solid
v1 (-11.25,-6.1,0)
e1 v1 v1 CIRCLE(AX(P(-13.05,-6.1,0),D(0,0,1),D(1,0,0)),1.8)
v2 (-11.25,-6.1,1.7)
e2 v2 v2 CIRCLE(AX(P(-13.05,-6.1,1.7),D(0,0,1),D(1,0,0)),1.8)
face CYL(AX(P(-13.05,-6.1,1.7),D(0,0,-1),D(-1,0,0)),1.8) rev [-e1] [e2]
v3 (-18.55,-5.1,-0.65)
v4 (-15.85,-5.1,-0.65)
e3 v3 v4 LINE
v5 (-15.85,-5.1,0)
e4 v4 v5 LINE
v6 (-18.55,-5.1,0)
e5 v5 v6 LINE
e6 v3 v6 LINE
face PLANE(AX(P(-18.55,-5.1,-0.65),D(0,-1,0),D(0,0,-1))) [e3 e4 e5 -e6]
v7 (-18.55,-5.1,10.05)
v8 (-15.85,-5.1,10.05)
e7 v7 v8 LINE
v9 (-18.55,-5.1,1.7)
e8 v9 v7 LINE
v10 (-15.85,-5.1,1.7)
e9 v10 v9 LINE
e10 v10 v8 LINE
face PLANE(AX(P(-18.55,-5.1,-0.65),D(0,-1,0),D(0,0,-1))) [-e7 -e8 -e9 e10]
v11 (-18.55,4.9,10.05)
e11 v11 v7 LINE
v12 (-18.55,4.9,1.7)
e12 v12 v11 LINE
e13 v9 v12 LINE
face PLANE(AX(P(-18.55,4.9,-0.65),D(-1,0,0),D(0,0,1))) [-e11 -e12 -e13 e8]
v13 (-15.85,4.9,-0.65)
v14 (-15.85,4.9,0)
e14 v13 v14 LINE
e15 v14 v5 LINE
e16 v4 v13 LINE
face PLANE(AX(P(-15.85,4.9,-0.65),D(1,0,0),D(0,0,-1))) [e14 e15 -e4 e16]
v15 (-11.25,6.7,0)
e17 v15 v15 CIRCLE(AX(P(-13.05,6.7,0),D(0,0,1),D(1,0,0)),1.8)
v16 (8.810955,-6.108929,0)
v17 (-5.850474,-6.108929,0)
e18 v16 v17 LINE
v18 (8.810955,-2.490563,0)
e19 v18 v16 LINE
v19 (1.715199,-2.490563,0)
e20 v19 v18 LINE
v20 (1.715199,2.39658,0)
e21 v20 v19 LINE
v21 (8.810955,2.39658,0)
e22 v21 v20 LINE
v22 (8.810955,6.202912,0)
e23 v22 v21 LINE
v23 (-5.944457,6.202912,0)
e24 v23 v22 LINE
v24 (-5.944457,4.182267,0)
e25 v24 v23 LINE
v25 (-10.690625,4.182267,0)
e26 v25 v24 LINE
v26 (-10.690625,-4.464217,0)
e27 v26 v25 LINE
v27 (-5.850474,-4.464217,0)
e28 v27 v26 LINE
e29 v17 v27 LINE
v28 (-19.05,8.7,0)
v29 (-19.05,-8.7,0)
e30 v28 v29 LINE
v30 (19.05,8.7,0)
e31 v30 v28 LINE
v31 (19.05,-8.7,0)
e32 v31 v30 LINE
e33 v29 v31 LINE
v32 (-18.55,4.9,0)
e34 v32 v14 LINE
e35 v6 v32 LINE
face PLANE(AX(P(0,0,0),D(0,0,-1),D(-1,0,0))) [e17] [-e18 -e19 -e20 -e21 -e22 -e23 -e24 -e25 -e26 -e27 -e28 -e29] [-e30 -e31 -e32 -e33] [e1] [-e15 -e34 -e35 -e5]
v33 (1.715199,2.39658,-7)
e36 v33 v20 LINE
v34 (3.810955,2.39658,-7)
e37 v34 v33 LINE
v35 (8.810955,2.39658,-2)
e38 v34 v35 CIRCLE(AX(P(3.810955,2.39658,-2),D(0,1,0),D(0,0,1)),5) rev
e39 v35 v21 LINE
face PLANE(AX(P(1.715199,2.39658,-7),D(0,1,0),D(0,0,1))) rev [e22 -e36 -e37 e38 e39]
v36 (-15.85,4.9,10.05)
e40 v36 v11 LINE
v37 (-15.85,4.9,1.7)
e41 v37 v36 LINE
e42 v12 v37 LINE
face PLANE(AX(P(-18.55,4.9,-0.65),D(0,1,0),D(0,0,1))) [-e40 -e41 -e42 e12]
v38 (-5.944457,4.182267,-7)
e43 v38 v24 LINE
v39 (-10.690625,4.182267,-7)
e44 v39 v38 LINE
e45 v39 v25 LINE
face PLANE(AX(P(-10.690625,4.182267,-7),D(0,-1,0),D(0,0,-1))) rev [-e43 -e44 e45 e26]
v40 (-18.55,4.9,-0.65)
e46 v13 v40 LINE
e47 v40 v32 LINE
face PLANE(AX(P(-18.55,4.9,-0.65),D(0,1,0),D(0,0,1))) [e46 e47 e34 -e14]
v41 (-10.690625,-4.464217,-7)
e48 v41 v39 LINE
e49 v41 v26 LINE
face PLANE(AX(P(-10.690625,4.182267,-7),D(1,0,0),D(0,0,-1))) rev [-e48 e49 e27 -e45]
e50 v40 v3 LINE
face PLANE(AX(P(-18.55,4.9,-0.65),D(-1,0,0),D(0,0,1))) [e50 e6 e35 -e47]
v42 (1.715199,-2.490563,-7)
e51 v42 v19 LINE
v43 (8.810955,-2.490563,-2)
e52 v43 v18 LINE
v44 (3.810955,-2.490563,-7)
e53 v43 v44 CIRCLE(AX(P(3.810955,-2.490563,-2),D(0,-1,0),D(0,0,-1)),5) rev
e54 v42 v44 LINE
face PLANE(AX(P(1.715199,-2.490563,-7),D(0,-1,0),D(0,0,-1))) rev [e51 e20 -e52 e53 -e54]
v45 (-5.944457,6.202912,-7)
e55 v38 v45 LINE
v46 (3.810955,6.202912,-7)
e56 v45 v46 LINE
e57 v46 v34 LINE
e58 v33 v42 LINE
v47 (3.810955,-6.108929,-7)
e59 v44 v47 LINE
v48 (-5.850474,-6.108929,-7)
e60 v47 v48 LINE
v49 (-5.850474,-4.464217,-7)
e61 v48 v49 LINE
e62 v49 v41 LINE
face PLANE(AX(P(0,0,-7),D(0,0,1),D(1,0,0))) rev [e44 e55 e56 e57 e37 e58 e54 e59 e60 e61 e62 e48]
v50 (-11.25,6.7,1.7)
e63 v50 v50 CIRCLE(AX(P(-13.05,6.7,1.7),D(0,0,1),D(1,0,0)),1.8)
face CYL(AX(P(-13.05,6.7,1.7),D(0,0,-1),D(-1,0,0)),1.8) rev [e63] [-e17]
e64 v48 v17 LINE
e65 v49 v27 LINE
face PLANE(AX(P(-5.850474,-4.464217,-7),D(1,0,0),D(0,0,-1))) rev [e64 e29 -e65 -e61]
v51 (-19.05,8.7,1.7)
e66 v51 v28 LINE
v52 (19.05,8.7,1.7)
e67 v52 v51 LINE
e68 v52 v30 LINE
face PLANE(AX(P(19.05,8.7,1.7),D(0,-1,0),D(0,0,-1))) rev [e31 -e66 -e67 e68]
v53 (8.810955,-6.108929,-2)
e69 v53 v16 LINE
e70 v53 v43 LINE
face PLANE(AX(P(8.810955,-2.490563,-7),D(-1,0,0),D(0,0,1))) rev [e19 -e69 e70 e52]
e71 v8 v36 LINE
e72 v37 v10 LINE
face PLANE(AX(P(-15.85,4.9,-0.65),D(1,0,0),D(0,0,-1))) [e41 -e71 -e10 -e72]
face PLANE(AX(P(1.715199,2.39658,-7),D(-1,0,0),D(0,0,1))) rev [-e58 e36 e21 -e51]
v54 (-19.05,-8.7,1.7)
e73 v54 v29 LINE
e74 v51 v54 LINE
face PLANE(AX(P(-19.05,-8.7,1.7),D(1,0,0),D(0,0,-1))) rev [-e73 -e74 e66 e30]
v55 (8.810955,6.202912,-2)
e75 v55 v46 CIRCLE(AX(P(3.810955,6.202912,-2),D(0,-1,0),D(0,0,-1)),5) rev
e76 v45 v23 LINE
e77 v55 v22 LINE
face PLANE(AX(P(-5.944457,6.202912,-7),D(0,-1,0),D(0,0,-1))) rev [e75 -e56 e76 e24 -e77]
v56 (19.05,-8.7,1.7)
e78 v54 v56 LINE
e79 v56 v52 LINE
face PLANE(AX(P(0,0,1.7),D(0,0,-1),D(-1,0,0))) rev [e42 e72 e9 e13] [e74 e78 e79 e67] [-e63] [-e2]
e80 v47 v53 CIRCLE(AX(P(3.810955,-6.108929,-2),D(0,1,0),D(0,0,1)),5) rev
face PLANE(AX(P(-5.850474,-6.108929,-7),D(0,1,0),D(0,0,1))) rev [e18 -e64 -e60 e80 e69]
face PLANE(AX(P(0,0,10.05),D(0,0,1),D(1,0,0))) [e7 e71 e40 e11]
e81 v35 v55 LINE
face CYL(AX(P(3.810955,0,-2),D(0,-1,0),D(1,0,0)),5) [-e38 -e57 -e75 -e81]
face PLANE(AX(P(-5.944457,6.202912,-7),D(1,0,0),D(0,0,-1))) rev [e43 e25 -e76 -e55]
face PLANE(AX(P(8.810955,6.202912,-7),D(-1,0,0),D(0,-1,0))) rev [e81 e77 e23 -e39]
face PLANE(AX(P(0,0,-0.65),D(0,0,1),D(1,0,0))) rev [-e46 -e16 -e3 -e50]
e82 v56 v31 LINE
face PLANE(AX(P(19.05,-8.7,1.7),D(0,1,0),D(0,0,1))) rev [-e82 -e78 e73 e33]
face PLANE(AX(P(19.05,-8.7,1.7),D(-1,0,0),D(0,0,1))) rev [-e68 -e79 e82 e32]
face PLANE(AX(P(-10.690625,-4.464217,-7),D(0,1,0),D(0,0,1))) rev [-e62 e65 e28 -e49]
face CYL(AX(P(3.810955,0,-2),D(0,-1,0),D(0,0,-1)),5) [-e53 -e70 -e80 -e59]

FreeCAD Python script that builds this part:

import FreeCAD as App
import Part
import Sketcher
from FreeCAD import Vector


def edges_at(feature, points):
    """Names of the edges that pass closest to the given points."""
    edges = feature.Shape.Edges
    near = lambda p: min(range(len(edges)), key=lambda i: edges[i].distToShape(Part.Vertex(*p))[0])
    return sorted({f"Edge{near(p) + 1}" for p in points})

doc = App.newDocument("Part")
body = doc.addObject("PartDesign::Body", "Body")

sketch1 = doc.addObject("Sketcher::SketchObject", "Sketch")
body.addObject(sketch1)
sketch1.AttachmentSupport = (doc.XY_Plane, [""])
sketch1.MapMode = "FlatFace"
sketch1.addGeometry([
    Part.LineSegment(Vector(-19.1, -8.7, 0), Vector(19.1, -8.7, 0)),
    Part.LineSegment(Vector(19.1, -8.7, 0), Vector(19.1, 8.7, 0)),
    Part.LineSegment(Vector(19.1, 8.7, 0), Vector(-19.1, 8.7, 0)),
    Part.LineSegment(Vector(-19.1, 8.7, 0), Vector(-19.1, -8.7, 0)),
    Part.Circle(Vector(-13.1, -6.1, 0), Vector(0, 0, 1), 1.8),
    Part.Circle(Vector(-13.1, 6.7, 0), Vector(0, 0, 1), 1.8),
], False)
sketch1.addConstraint([
    Sketcher.Constraint("Coincident", 0, 2, 1, 1),
    Sketcher.Constraint("Coincident", 1, 2, 2, 1),
    Sketcher.Constraint("Coincident", 2, 2, 3, 1),
    Sketcher.Constraint("Coincident", 3, 2, 0, 1),
    Sketcher.Constraint("Horizontal", 0),
    Sketcher.Constraint("Vertical", 1),
    Sketcher.Constraint("Horizontal", 2),
    Sketcher.Constraint("Vertical", 3),
    Sketcher.Constraint("Equal", 4, 5),
    Sketcher.Constraint("Symmetric", 0, 2, 2, 2, -1, 1),
    Sketcher.Constraint("Vertical", 4, 3, 5, 3),
    Sketcher.Constraint("Diameter", 4, 3.6),
    Sketcher.Constraint("DistanceX", 0, 1, 0, 2, 38.1),
    Sketcher.Constraint("DistanceY", 1, 1, 1, 2, 17.4),
    Sketcher.Constraint("DistanceY", 5, 3, 1, 2, 2.0),
    Sketcher.Constraint("DistanceX", 2, 2, 5, 3, 6.0),
    Sketcher.Constraint("DistanceY", 4, 3, -1, 1, 6.1),
])
pad1 = doc.addObject("PartDesign::Pad", "Pad")
body.addObject(pad1)
pad1.Profile = sketch1
pad1.Length = 1.7

sketch2 = doc.addObject("Sketcher::SketchObject", "Sketch001")
body.addObject(sketch2)
sketch2.AttachmentSupport = (doc.XY_Plane, [""])
sketch2.MapMode = "FlatFace"
sketch2.AttachmentOffset = App.Placement(Vector(0, 0, 1.7), App.Rotation())
sketch2.addGeometry([
    Part.LineSegment(Vector(-18.6, 4.9, 0), Vector(-18.6, -5.1, 0)),
    Part.LineSegment(Vector(-18.6, -5.1, 0), Vector(-15.8, -5.1, 0)),
    Part.LineSegment(Vector(-15.8, -5.1, 0), Vector(-15.8, 4.9, 0)),
    Part.LineSegment(Vector(-15.8, 4.9, 0), Vector(-18.6, 4.9, 0)),
], False)
sketch2.addConstraint([
    Sketcher.Constraint("Coincident", 0, 2, 1, 1),
    Sketcher.Constraint("Coincident", 1, 2, 2, 1),
    Sketcher.Constraint("Coincident", 2, 2, 3, 1),
    Sketcher.Constraint("Coincident", 3, 2, 0, 1),
    Sketcher.Constraint("Vertical", 0),
    Sketcher.Constraint("Horizontal", 1),
    Sketcher.Constraint("Vertical", 2),
    Sketcher.Constraint("Horizontal", 3),
    Sketcher.Constraint("DistanceY", 0, 2, 0, 1, 10.0),
    Sketcher.Constraint("DistanceX", 1, 1, 1, 2, 2.7),
    Sketcher.Constraint("DistanceY", 0, 2, -1, 1, 5.1),
    Sketcher.Constraint("DistanceX", 0, 2, -1, 1, 18.55),
])
pad2 = doc.addObject("PartDesign::Pad", "Pad001")
body.addObject(pad2)
pad2.Profile = sketch2
pad2.Type = "TwoLengths"
pad2.Length = 8.35
pad2.Length2 = 2.35

sketch3 = doc.addObject("Sketcher::SketchObject", "Sketch002")
body.addObject(sketch3)
sketch3.AttachmentSupport = (doc.XY_Plane, [""])
sketch3.MapMode = "FlatFace"
sketch3.addGeometry([
    Part.LineSegment(Vector(-10.7, 4.2, 0), Vector(-5.9, 4.2, 0)),
    Part.LineSegment(Vector(-5.9, 4.2, 0), Vector(-5.9, 6.2, 0)),
    Part.LineSegment(Vector(-5.9, 6.2, 0), Vector(8.8, 6.2, 0)),
    Part.LineSegment(Vector(8.8, 6.2, 0), Vector(8.8, 2.4, 0)),
    Part.LineSegment(Vector(8.8, 2.4, 0), Vector(1.7, 2.4, 0)),
    Part.LineSegment(Vector(1.7, 2.4, 0), Vector(1.7, -2.5, 0)),
    Part.LineSegment(Vector(1.7, -2.5, 0), Vector(8.8, -2.5, 0)),
    Part.LineSegment(Vector(8.8, -2.5, 0), Vector(8.8, -6.1, 0)),
    Part.LineSegment(Vector(8.8, -6.1, 0), Vector(-5.9, -6.1, 0)),
    Part.LineSegment(Vector(-5.9, -6.1, 0), Vector(-5.9, -4.5, 0)),
    Part.LineSegment(Vector(-5.9, -4.5, 0), Vector(-10.7, -4.5, 0)),
    Part.LineSegment(Vector(-10.7, -4.5, 0), Vector(-10.7, 4.2, 0)),
], False)
sketch3.addConstraint([
    Sketcher.Constraint("Coincident", 0, 2, 1, 1),
    Sketcher.Constraint("Coincident", 1, 2, 2, 1),
    Sketcher.Constraint("Coincident", 2, 2, 3, 1),
    Sketcher.Constraint("Coincident", 3, 2, 4, 1),
    Sketcher.Constraint("Coincident", 4, 2, 5, 1),
    Sketcher.Constraint("Coincident", 5, 2, 6, 1),
    Sketcher.Constraint("Coincident", 6, 2, 7, 1),
    Sketcher.Constraint("Coincident", 7, 2, 8, 1),
    Sketcher.Constraint("Coincident", 8, 2, 9, 1),
    Sketcher.Constraint("Coincident", 9, 2, 10, 1),
    Sketcher.Constraint("Coincident", 10, 2, 11, 1),
    Sketcher.Constraint("Coincident", 11, 2, 0, 1),
    Sketcher.Constraint("Horizontal", 0),
    Sketcher.Constraint("Vertical", 1),
    Sketcher.Constraint("Horizontal", 2),
    Sketcher.Constraint("Vertical", 3),
    Sketcher.Constraint("Horizontal", 4),
    Sketcher.Constraint("Vertical", 5),
    Sketcher.Constraint("Horizontal", 6),
    Sketcher.Constraint("Vertical", 7),
    Sketcher.Constraint("Horizontal", 8),
    Sketcher.Constraint("Vertical", 9),
    Sketcher.Constraint("Horizontal", 10),
    Sketcher.Constraint("Vertical", 11),
    Sketcher.Constraint("Vertical", 3, 2, 6, 2),
    Sketcher.Constraint("DistanceX", 8, 2, 8, 1, 14.661429),
    Sketcher.Constraint("DistanceX", 10, 2, 10, 1, 4.840151),
    Sketcher.Constraint("DistanceY", 9, 1, 9, 2, 1.644712),
    Sketcher.Constraint("DistanceX", -1, 1, 4, 2, 1.715199),
    Sketcher.Constraint("DistanceX", 0, 1, 0, 2, 4.746168),
    Sketcher.Constraint("DistanceX", 4, 2, 4, 1, 7.095756),
    Sketcher.Constraint("DistanceY", 1, 1, 1, 2, 2.020646),
    Sketcher.Constraint("DistanceY", 3, 2, 3, 1, 3.806332),
    Sketcher.Constraint("DistanceY", 5, 2, 5, 1, 4.887143),
    Sketcher.Constraint("DistanceY", 7, 2, 7, 1, 3.618365),
    Sketcher.Constraint("DistanceY", -1, 1, 3, 2, 2.39658),
])
pad3 = doc.addObject("PartDesign::Pad", "Pad002")
body.addObject(pad3)
pad3.Profile = sketch3
pad3.Length = 7
pad3.Reversed = True
doc.recompute()

fillet = doc.addObject("PartDesign::Fillet", "Fillet")
body.addObject(fillet)
fillet.Base = (pad3, edges_at(pad3, [(8.811, 4.3, -7), (8.811, -4.3, -7)]))
fillet.Radius = 5

doc.recompute()
